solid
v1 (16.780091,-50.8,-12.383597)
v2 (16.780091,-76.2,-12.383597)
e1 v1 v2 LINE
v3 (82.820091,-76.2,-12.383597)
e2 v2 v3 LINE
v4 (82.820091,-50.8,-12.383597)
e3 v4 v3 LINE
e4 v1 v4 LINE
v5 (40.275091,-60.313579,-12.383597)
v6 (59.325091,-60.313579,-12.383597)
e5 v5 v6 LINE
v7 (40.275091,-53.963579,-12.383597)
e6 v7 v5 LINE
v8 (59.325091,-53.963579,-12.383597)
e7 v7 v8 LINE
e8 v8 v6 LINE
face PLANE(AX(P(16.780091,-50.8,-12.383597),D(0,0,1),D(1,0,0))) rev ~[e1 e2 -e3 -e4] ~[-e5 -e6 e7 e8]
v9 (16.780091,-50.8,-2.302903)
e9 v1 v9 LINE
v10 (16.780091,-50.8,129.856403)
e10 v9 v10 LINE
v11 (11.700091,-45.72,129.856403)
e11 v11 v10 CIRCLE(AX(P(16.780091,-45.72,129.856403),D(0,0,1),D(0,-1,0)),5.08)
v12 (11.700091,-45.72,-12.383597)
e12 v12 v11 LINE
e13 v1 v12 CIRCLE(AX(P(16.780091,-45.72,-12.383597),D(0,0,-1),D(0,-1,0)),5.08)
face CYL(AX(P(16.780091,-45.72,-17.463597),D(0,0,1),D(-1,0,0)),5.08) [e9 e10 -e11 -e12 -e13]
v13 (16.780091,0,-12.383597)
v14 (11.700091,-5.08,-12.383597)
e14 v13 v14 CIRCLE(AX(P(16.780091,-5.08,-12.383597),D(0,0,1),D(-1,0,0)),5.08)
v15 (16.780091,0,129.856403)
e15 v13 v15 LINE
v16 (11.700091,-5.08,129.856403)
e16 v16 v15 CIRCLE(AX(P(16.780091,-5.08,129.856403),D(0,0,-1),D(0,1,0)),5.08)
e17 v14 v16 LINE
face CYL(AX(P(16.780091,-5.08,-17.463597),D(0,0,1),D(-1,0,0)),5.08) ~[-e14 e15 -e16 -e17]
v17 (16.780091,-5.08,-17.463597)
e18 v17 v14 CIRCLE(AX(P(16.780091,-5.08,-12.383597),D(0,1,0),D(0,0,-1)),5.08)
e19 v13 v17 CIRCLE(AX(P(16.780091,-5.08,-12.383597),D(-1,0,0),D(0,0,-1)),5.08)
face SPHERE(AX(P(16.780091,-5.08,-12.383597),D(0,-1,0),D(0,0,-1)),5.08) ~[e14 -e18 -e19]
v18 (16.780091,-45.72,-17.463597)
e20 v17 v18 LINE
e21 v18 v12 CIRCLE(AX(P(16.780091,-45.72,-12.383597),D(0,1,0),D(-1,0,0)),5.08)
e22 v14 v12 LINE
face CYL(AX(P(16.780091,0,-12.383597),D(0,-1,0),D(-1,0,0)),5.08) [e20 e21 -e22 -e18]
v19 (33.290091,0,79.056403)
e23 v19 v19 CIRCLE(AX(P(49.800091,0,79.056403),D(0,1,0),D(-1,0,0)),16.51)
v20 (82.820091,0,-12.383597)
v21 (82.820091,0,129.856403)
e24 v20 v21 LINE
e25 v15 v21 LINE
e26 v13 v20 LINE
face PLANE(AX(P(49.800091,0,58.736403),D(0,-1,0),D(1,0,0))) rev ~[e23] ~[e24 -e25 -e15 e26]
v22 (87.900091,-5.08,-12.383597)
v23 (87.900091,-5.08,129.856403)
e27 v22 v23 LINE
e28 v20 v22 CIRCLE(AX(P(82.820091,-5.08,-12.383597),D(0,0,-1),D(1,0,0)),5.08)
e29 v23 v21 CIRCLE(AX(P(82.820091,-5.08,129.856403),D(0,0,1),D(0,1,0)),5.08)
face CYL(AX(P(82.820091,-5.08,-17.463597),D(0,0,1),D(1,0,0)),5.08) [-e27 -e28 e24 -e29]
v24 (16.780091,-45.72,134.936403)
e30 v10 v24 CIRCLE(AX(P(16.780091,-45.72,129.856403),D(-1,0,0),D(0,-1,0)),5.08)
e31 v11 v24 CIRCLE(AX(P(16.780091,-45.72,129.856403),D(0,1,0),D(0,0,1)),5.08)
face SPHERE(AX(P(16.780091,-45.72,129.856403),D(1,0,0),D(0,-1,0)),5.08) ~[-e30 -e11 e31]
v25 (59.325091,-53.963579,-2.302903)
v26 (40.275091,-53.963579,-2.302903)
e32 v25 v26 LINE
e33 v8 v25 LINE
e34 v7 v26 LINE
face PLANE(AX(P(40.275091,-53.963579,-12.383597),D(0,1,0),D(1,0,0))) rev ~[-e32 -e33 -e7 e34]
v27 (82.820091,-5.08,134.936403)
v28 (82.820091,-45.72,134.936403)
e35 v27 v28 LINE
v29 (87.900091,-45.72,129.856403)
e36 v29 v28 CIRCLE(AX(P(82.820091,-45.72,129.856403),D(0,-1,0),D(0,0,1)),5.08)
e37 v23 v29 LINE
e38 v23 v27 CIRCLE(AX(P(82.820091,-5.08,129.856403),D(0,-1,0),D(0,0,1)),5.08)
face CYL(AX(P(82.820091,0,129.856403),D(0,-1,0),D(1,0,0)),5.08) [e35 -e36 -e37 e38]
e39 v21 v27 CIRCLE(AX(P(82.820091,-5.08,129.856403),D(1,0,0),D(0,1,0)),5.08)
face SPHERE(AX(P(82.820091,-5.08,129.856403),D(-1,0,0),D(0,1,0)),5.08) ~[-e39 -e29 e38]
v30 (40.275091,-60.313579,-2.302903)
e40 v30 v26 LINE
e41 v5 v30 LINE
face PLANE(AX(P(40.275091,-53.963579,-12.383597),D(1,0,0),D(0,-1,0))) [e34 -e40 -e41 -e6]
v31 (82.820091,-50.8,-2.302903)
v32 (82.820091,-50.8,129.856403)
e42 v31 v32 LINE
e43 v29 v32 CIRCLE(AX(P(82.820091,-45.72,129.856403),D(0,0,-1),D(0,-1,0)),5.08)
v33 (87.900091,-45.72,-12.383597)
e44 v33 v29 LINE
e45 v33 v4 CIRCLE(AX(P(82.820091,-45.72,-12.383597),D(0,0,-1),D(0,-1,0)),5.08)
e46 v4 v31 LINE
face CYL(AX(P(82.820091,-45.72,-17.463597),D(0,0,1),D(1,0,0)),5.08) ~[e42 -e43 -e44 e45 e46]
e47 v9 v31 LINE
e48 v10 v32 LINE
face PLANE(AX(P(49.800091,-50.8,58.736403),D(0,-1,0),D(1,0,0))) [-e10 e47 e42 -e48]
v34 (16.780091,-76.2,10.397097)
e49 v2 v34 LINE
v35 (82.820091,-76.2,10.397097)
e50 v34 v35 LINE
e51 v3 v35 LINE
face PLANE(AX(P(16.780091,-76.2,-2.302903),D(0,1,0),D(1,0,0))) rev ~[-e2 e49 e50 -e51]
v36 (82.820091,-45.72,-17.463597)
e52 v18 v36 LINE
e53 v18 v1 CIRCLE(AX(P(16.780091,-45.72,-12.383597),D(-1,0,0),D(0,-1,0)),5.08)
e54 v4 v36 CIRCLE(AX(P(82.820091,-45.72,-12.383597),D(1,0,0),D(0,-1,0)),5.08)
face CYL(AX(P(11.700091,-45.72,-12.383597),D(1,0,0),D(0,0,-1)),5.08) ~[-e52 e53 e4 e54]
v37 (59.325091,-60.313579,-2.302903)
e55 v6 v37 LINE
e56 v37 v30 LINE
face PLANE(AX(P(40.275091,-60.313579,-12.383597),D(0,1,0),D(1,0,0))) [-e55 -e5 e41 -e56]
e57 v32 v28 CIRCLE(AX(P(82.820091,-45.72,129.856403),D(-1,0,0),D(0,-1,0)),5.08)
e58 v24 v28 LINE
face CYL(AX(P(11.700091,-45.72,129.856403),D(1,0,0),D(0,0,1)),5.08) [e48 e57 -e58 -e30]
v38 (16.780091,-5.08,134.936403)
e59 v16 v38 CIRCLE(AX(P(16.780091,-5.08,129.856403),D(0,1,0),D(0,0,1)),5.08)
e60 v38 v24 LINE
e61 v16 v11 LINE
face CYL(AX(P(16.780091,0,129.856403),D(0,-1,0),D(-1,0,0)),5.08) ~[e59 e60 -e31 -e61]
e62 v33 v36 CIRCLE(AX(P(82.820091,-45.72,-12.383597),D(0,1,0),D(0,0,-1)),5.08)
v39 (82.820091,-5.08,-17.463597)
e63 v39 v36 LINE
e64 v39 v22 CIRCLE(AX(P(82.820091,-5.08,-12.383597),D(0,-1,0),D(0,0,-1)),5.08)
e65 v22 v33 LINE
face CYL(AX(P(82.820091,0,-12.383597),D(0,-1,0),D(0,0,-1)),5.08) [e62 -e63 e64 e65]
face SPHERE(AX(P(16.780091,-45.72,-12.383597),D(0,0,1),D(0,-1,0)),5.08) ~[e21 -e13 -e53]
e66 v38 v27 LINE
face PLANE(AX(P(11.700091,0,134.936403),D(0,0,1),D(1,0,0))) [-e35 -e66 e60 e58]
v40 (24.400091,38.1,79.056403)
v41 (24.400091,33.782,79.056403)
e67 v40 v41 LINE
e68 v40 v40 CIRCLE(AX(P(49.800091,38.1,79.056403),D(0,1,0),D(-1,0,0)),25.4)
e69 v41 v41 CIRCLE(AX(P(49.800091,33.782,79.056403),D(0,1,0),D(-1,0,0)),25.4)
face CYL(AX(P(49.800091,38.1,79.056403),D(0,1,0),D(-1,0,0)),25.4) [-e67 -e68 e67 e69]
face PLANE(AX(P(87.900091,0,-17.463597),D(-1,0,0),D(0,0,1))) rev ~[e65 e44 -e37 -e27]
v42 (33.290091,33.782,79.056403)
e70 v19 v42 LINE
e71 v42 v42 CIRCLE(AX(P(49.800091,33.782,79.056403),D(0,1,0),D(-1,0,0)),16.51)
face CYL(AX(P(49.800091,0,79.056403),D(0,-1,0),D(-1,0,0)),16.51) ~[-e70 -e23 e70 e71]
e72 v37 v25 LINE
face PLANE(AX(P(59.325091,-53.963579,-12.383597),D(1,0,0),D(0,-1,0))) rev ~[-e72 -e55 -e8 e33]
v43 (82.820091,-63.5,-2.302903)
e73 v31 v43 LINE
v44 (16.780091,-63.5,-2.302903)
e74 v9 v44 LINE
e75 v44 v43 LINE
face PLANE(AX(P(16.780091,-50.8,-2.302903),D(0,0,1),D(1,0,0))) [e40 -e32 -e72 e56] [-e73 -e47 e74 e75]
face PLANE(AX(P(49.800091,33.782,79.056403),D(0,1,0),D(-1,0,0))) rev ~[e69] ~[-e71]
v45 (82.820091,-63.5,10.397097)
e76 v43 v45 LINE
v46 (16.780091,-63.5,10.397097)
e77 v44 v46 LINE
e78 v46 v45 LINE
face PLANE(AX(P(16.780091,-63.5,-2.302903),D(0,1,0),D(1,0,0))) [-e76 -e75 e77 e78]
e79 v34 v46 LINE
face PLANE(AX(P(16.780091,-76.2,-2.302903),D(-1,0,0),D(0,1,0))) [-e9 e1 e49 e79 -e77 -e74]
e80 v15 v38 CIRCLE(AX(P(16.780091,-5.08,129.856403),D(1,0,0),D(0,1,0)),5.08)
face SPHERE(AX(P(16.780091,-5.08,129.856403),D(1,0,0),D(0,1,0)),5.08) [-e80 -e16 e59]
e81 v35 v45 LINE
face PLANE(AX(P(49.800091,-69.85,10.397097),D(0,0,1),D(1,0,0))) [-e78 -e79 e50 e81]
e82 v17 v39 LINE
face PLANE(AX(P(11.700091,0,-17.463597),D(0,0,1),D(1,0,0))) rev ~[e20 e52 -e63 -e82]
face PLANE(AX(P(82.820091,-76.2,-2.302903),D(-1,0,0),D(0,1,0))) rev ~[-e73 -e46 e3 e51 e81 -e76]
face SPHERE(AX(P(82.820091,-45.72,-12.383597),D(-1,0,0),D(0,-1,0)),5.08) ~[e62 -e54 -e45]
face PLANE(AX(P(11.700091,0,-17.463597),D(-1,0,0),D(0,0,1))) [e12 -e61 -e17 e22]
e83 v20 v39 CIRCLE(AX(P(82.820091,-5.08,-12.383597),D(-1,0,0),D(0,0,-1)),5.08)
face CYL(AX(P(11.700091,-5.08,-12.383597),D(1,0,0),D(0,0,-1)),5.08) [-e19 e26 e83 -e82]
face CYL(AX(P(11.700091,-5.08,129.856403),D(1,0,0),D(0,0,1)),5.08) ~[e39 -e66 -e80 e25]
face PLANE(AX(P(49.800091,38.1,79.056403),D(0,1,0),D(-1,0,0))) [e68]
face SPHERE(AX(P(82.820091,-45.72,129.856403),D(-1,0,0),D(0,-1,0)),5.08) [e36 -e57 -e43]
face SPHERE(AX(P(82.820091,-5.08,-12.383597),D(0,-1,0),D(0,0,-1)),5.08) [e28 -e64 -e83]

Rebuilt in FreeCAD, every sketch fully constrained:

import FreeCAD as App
import Part
import Sketcher

V = App.Vector
Q = App.Units.Quantity

doc = App.newDocument("Part")
params = doc.addObject("Spreadsheet::Sheet", "Params")
for row, (alias, value) in enumerate([
    ("sketch1_width", "3 in"),
    ("sketch1_height", "6 in"),
    ("pad1_length", "2 in"),
    ("fillet_radius", "0.2 in"),
    ("sketch2_width", "2.6 in"),
    ("pad2_length", "1 in"),
    ("sketch3_width", "2.6 in"),
    ("sketch3_height", "0.5 in"),
    ("pad3_length", "0.5 in"),
    ("sketch4_width", "0.75 in"),
    ("sketch4_height", "0.25 in"),
    ("pocket1_length", "4.09 in"),
    ("sketch5_diameter", "1.3 in"),
    ("pad4_length", "1.5 in"),
    ("sketch6_diameter", "2 in"),
    ("sketch6_diameter2", "1.3 in"),
    ("pad5_length", "0.17 in"),
], start=1):
    params.set(f"A{row}", alias)
    params.set(f"B{row}", "=" + value)
    params.setAlias(f"B{row}", alias)

body = doc.addObject("PartDesign::Body", "Body")

# Sketch on XZ plane
sketch1 = body.newObject("Sketcher::SketchObject", "Sketch")
sketch1.AttachmentSupport = (doc.getObject("XZ_Plane"), [""])
sketch1.MapMode = "FlatFace"
sketch1.addGeometry(Part.LineSegment(V(12, 135, 0), V(12, -17, 0)), False)
sketch1.addGeometry(Part.LineSegment(V(12, -17, 0), V(88, -17, 0)), False)
sketch1.addGeometry(Part.LineSegment(V(88, -17, 0), V(88, 135, 0)), False)
sketch1.addGeometry(Part.LineSegment(V(88, 135, 0), V(12, 135, 0)), False)
sketch1.addConstraint(Sketcher.Constraint("Coincident", 0, 2, 1, 1))
sketch1.addConstraint(Sketcher.Constraint("Coincident", 1, 2, 2, 1))
sketch1.addConstraint(Sketcher.Constraint("Coincident", 2, 2, 3, 1))
sketch1.addConstraint(Sketcher.Constraint("Coincident", 3, 2, 0, 1))
sketch1.addConstraint(Sketcher.Constraint("Vertical", 0))
sketch1.addConstraint(Sketcher.Constraint("Horizontal", 1))
sketch1.addConstraint(Sketcher.Constraint("Vertical", 2))
sketch1.addConstraint(Sketcher.Constraint("Horizontal", 3))
sketch1.addConstraint(Sketcher.Constraint("DistanceX", 1, 1, 1, 2, Q("3 in")))
sketch1.addConstraint(Sketcher.Constraint("DistanceY", 0, 2, 0, 1, Q("6 in")))
sketch1.addConstraint(Sketcher.Constraint("DistanceX", -1, 1, 0, 2, Q("11.700091 mm")))
sketch1.addConstraint(Sketcher.Constraint("DistanceY", 0, 2, -1, 1, Q("17.463597 mm")))
sketch1.setExpression("Constraints[8]", "Params.sketch1_width")
sketch1.setExpression("Constraints[9]", "Params.sketch1_height")
pad1 = body.newObject("PartDesign::Pad", "Pad")
pad1.Profile = sketch1
pad1.setExpression("Length", "Params.pad1_length")
doc.recompute()

fillet = body.newObject("PartDesign::Fillet", "Fillet")
fillet.Base = (pad1, ["Edge1"])
fillet.UseAllEdges = True
fillet.setExpression("Radius", "Params.fillet_radius")

# Sketch on XZ plane
sketch2 = body.newObject("Sketcher::SketchObject", "Sketch001")
sketch2.AttachmentSupport = (doc.getObject("XZ_Plane"), [""])
sketch2.MapMode = "FlatFace"
sketch2.AttachmentOffset = App.Placement(V(0, 0, 2 * 25.4), App.Rotation())
sketch2.addGeometry(Part.LineSegment(V(17, -2, 0), V(17, -12, 0)), False)
sketch2.addGeometry(Part.LineSegment(V(17, -12, 0), V(83, -12, 0)), False)
sketch2.addGeometry(Part.LineSegment(V(83, -12, 0), V(83, -2, 0)), False)
sketch2.addGeometry(Part.LineSegment(V(83, -2, 0), V(17, -2, 0)), False)
sketch2.addConstraint(Sketcher.Constraint("Coincident", 0, 2, 1, 1))
sketch2.addConstraint(Sketcher.Constraint("Coincident", 1, 2, 2, 1))
sketch2.addConstraint(Sketcher.Constraint("Coincident", 2, 2, 3, 1))
sketch2.addConstraint(Sketcher.Constraint("Coincident", 3, 2, 0, 1))
sketch2.addConstraint(Sketcher.Constraint("Vertical", 0))
sketch2.addConstraint(Sketcher.Constraint("Horizontal", 1))
sketch2.addConstraint(Sketcher.Constraint("Vertical", 2))
sketch2.addConstraint(Sketcher.Constraint("Horizontal", 3))
sketch2.addConstraint(Sketcher.Constraint("DistanceX", 1, 1, 1, 2, Q("2.6 in")))
sketch2.addConstraint(Sketcher.Constraint("DistanceY", 0, 2, 0, 1, Q("10.080694 mm")))
sketch2.addConstraint(Sketcher.Constraint("DistanceX", -1, 1, 0, 2, Q("16.780091 mm")))
sketch2.addConstraint(Sketcher.Constraint("DistanceY", 0, 2, -1, 1, Q("12.383597 mm")))
sketch2.setExpression("Constraints[8]", "Params.sketch2_width")
pad2 = body.newObject("PartDesign::Pad", "Pad001")
pad2.Profile = sketch2
pad2.setExpression("Length", "Params.pad2_length")

# Sketch on XY plane
sketch3 = body.newObject("Sketcher::SketchObject", "Sketch002")
sketch3.AttachmentSupport = (doc.getObject("XY_Plane"), [""])
sketch3.MapMode = "FlatFace"
sketch3.AttachmentOffset = App.Placement(V(0, 0, -2.302903), App.Rotation())
sketch3.addGeometry(Part.LineSegment(V(17, -64, 0), V(17, -76, 0)), False)
sketch3.addGeometry(Part.LineSegment(V(17, -76, 0), V(83, -76, 0)), False)
sketch3.addGeometry(Part.LineSegment(V(83, -76, 0), V(83, -64, 0)), False)
sketch3.addGeometry(Part.LineSegment(V(83, -64, 0), V(17, -64, 0)), False)
sketch3.addConstraint(Sketcher.Constraint("Coincident", 0, 2, 1, 1))
sketch3.addConstraint(Sketcher.Constraint("Coincident", 1, 2, 2, 1))
sketch3.addConstraint(Sketcher.Constraint("Coincident", 2, 2, 3, 1))
sketch3.addConstraint(Sketcher.Constraint("Coincident", 3, 2, 0, 1))
sketch3.addConstraint(Sketcher.Constraint("Vertical", 0))
sketch3.addConstraint(Sketcher.Constraint("Horizontal", 1))
sketch3.addConstraint(Sketcher.Constraint("Vertical", 2))
sketch3.addConstraint(Sketcher.Constraint("Horizontal", 3))
sketch3.addConstraint(Sketcher.Constraint("DistanceX", 1, 1, 1, 2, Q("2.6 in")))
sketch3.addConstraint(Sketcher.Constraint("DistanceY", 0, 2, 0, 1, Q("0.5 in")))
sketch3.addConstraint(Sketcher.Constraint("DistanceY", 0, 2, -1, 1, Q("3 in")))
sketch3.addConstraint(Sketcher.Constraint("DistanceX", -1, 1, 0, 2, Q("16.780091 mm")))
sketch3.setExpression("Constraints[8]", "Params.sketch3_width")
sketch3.setExpression("Constraints[9]", "Params.sketch3_height")
pad3 = body.newObject("PartDesign::Pad", "Pad002")
pad3.Profile = sketch3
pad3.setExpression("Length", "Params.pad3_length")

# Sketch on XY plane
sketch4 = body.newObject("Sketcher::SketchObject", "Sketch003")
sketch4.AttachmentSupport = (doc.getObject("XY_Plane"), [""])
sketch4.MapMode = "FlatFace"
sketch4.AttachmentOffset = App.Placement(V(0, 0, -12.383597), App.Rotation())
sketch4.addGeometry(Part.LineSegment(V(40, -60, 0), V(40, -54, 0)), False)
sketch4.addGeometry(Part.LineSegment(V(40, -54, 0), V(59, -54, 0)), False)
sketch4.addGeometry(Part.LineSegment(V(59, -54, 0), V(59, -60, 0)), False)
sketch4.addGeometry(Part.LineSegment(V(59, -60, 0), V(40, -60, 0)), False)
sketch4.addConstraint(Sketcher.Constraint("Coincident", 0, 2, 1, 1))
sketch4.addConstraint(Sketcher.Constraint("Coincident", 1, 2, 2, 1))
sketch4.addConstraint(Sketcher.Constraint("Coincident", 2, 2, 3, 1))
sketch4.addConstraint(Sketcher.Constraint("Coincident", 3, 2, 0, 1))
sketch4.addConstraint(Sketcher.Constraint("Vertical", 0))
sketch4.addConstraint(Sketcher.Constraint("Horizontal", 1))
sketch4.addConstraint(Sketcher.Constraint("Vertical", 2))
sketch4.addConstraint(Sketcher.Constraint("Horizontal", 3))
sketch4.addConstraint(Sketcher.Constraint("DistanceX", 1, 1, 1, 2, Q("0.75 in")))
sketch4.addConstraint(Sketcher.Constraint("DistanceY", 0, 1, 0, 2, Q("0.25 in")))
sketch4.addConstraint(Sketcher.Constraint("DistanceX", -1, 1, 0, 2, Q("40.275091 mm")))
sketch4.addConstraint(Sketcher.Constraint("DistanceY", 0, 2, -1, 1, Q("53.963579 mm")))
sketch4.setExpression("Constraints[8]", "Params.sketch4_width")
sketch4.setExpression("Constraints[9]", "Params.sketch4_height")
pocket1 = body.newObject("PartDesign::Pocket", "Pocket")
pocket1.Profile = sketch4
pocket1.setExpression("Length", "Params.pocket1_length")
pocket1.Reversed = True

# Sketch on XZ plane
sketch5 = body.newObject("Sketcher::SketchObject", "Sketch004")
sketch5.AttachmentSupport = (doc.getObject("XZ_Plane"), [""])
sketch5.MapMode = "FlatFace"
sketch5.addGeometry(Part.Circle(V(50, 79, 0), V(0, 0, 1), 17), False)
sketch5.addConstraint(Sketcher.Constraint("Diameter", 0, Q("1.3 in")))
sketch5.addConstraint(Sketcher.Constraint("DistanceX", -1, 1, 0, 3, Q("49.800091 mm")))
sketch5.addConstraint(Sketcher.Constraint("DistanceY", -1, 1, 0, 3, Q("79.056403 mm")))
sketch5.setExpression("Constraints[0]", "Params.sketch5_diameter")
pad4 = body.newObject("PartDesign::Pad", "Pad003")
pad4.Profile = sketch5
pad4.setExpression("Length", "Params.pad4_length")
pad4.Reversed = True

# Sketch on XZ plane
sketch6 = body.newObject("Sketcher::SketchObject", "Sketch005")
sketch6.AttachmentSupport = (doc.getObject("XZ_Plane"), [""])
sketch6.MapMode = "FlatFace"
sketch6.AttachmentOffset = App.Placement(V(0, 0, -1.5 * 25.4), App.Rotation())
sketch6.addGeometry(Part.Circle(V(50, 79, 0), V(0, 0, 1), 25), False)
sketch6.addGeometry(Part.Circle(V(50, 79, 0), V(0, 0, 1), 17), False)
sketch6.addConstraint(Sketcher.Constraint("Coincident", 1, 3, 0, 3))
sketch6.addConstraint(Sketcher.Constraint("Diameter", 0, Q("2 in")))
sketch6.addConstraint(Sketcher.Constraint("Diameter", 1, Q("1.3 in")))
sketch6.addConstraint(Sketcher.Constraint("DistanceX", -1, 1, 0, 3, Q("49.800091 mm")))
sketch6.addConstraint(Sketcher.Constraint("DistanceY", -1, 1, 0, 3, Q("79.056403 mm")))
sketch6.setExpression("Constraints[1]", "Params.sketch6_diameter")
sketch6.setExpression("Constraints[2]", "Params.sketch6_diameter2")
pad5 = body.newObject("PartDesign::Pad", "Pad004")
pad5.Profile = sketch6
pad5.setExpression("Length", "Params.pad5_length")

doc.recompute()
